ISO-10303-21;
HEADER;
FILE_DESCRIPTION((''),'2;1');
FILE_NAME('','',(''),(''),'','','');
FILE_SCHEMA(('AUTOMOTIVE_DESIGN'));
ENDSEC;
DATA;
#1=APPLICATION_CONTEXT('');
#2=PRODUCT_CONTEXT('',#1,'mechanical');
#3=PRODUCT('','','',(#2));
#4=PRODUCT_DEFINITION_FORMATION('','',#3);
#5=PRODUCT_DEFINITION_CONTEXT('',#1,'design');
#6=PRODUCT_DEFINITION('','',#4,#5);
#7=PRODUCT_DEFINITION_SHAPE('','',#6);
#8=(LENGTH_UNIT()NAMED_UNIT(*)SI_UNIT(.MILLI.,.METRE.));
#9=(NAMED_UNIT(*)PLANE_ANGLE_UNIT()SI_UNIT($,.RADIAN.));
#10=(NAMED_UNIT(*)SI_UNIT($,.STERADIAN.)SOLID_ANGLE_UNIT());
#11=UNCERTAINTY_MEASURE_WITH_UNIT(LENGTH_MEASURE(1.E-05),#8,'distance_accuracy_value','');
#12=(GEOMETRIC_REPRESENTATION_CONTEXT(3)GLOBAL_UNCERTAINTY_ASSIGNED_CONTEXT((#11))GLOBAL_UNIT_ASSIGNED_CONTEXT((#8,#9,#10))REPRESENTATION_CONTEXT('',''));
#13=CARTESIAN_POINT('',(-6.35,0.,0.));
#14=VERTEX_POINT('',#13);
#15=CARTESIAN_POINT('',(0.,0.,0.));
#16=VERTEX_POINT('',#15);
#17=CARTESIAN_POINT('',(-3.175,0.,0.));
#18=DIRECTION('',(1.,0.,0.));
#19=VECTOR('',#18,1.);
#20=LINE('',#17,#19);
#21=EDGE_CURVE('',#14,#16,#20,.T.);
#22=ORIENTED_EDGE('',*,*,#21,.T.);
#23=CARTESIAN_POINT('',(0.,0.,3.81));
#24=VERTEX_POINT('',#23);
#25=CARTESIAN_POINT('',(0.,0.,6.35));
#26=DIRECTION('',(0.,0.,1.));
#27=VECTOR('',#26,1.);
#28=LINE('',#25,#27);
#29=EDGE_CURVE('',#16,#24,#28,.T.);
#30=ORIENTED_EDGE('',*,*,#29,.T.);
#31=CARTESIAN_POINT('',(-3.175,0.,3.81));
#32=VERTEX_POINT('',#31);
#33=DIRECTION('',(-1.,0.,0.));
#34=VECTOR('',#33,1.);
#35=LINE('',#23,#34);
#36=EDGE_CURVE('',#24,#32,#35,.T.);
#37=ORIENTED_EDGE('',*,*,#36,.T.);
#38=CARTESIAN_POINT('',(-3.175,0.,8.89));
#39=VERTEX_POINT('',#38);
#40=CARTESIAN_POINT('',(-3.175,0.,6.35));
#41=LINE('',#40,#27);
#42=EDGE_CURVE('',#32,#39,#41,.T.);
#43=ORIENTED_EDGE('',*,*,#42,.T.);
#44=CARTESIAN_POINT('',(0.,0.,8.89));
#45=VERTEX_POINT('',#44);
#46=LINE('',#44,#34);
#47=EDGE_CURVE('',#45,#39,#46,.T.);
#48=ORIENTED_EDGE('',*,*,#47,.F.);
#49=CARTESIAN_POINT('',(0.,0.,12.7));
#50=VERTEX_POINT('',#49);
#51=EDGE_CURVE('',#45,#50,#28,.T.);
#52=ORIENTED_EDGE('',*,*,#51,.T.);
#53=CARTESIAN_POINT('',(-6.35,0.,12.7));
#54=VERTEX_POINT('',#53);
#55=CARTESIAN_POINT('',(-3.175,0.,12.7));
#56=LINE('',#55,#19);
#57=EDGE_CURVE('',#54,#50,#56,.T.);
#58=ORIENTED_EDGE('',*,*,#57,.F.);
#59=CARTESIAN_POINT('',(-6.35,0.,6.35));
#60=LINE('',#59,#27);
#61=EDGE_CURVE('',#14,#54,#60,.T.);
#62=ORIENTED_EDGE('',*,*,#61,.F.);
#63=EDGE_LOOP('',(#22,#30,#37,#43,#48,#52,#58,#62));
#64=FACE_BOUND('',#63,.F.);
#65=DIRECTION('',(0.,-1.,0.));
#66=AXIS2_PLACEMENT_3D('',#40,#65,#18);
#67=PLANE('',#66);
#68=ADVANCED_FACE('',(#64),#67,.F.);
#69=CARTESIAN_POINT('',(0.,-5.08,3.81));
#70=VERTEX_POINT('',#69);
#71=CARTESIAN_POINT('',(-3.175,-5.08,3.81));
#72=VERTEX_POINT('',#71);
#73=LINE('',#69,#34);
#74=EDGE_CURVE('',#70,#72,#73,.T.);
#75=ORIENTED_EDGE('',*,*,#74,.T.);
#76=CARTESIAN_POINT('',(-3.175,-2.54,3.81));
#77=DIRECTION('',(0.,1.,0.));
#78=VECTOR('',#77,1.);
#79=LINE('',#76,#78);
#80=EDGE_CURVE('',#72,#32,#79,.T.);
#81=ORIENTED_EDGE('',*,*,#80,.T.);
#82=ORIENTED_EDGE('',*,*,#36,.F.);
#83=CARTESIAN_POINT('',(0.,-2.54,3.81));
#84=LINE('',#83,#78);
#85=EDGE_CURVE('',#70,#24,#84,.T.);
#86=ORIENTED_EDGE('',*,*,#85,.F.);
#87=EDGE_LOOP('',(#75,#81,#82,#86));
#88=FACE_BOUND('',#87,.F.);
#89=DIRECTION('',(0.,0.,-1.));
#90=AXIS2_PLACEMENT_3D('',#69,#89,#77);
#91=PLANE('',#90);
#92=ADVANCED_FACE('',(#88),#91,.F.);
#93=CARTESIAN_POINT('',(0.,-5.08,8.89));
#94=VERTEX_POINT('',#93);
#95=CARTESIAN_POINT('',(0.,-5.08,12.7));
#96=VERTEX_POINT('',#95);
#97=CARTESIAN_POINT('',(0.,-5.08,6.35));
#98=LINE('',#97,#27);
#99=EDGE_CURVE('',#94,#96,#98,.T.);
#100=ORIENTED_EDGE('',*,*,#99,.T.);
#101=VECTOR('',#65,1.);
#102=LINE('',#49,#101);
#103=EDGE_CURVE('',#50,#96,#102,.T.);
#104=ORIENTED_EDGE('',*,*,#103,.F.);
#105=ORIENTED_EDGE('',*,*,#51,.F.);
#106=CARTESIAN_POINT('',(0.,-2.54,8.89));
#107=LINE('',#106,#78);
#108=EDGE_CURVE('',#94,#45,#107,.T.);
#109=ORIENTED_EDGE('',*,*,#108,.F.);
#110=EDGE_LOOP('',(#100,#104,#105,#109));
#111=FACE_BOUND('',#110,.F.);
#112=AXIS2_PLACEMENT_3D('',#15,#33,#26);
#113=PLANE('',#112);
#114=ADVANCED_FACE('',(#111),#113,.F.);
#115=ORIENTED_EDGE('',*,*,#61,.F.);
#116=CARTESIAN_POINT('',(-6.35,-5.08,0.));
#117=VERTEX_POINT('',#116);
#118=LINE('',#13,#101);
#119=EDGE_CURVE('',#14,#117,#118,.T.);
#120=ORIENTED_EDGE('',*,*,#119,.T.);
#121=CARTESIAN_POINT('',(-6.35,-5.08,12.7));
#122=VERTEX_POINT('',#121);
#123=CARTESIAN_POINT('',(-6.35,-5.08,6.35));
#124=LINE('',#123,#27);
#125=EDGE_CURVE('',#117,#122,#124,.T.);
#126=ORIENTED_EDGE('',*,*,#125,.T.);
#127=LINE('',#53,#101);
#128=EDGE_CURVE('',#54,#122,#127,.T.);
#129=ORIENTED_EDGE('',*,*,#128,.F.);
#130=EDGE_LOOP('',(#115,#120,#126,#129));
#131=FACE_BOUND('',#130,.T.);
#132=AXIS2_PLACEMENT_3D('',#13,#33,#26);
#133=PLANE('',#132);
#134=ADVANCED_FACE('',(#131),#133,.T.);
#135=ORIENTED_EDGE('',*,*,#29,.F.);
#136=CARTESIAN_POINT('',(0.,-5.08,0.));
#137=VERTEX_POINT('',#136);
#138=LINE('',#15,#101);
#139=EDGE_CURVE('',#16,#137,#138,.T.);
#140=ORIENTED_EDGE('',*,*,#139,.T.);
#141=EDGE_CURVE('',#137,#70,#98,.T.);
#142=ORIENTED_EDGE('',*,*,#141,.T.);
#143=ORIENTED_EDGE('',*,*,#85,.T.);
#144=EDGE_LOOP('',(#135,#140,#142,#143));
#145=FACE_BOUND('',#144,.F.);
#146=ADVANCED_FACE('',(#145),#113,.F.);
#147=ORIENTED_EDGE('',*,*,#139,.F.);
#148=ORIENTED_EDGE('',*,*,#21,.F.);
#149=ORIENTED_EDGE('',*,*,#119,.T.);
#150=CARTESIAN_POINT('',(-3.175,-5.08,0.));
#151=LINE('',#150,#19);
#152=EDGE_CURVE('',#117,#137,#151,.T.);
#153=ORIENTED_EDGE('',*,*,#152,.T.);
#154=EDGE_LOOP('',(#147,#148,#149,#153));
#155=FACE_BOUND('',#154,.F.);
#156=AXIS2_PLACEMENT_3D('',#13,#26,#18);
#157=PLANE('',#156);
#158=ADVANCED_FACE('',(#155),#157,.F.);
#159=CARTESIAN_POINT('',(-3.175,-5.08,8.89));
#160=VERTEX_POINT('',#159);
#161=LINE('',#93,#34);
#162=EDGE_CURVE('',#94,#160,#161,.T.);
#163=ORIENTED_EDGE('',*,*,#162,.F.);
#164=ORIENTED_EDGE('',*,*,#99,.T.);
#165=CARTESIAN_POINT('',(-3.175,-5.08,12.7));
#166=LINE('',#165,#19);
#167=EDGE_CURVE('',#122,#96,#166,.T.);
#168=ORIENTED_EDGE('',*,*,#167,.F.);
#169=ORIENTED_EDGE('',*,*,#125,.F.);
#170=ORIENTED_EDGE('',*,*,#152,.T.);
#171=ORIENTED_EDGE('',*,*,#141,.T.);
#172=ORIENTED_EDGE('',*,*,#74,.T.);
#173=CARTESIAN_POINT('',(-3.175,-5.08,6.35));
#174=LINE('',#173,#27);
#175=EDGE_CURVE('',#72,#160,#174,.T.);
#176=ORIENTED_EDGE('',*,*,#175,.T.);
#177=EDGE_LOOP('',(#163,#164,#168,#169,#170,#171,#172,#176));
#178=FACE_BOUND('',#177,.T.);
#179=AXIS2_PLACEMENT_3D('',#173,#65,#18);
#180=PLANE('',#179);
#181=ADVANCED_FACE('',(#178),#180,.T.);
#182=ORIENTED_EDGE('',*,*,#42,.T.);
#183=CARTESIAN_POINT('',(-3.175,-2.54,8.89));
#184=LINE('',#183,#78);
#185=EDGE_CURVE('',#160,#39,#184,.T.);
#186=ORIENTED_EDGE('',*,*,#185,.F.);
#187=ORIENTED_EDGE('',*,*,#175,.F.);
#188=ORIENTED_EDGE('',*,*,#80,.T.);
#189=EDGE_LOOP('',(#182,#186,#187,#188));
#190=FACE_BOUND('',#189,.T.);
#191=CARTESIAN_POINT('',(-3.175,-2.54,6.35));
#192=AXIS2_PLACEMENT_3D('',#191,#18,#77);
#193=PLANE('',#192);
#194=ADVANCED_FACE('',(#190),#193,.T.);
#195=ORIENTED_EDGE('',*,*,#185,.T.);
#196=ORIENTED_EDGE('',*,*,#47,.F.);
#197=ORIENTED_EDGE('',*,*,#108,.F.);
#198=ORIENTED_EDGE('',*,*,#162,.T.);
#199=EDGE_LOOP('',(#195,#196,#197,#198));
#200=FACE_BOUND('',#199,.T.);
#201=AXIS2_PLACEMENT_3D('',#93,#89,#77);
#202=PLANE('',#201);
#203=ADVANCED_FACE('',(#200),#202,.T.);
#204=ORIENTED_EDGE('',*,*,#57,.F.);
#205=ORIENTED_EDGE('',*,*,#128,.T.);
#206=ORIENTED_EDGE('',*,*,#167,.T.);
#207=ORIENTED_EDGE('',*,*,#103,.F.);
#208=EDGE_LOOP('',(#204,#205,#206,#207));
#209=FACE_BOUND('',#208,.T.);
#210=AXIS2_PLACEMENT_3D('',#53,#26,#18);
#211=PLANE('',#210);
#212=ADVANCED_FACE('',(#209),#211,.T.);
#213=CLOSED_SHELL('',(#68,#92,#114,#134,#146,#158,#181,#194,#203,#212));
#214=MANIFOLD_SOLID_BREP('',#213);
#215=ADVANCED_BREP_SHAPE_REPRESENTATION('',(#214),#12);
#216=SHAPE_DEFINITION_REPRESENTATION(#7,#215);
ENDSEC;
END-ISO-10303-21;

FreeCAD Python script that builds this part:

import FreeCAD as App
import Part
import Sketcher

V = App.Vector
Q = App.Units.Quantity

doc = App.newDocument("Part")
body = doc.addObject("PartDesign::Body", "Body")

# Sketch on XZ plane
sketch1 = doc.addObject("Sketcher::SketchObject", "Sketch")
body.addObject(sketch1)
sketch1.AttachmentSupport = (doc.XZ_Plane, [""])
sketch1.MapMode = "FlatFace"
sketch1.addGeometry([
    Part.LineSegment(V(-6.35, 12.7, 0), V(-6.35, 0, 0)),
    Part.LineSegment(V(-6.35, 0, 0), V(0, 0, 0)),
    Part.LineSegment(V(0, 0, 0), V(0, 12.7, 0)),
    Part.LineSegment(V(0, 12.7, 0), V(-6.35, 12.7, 0)),
], False)
sketch1.addConstraint([
    Sketcher.Constraint("Coincident", 0, 2, 1, 1),
    Sketcher.Constraint("Coincident", 1, 2, 2, 1),
    Sketcher.Constraint("Coincident", 2, 2, 3, 1),
    Sketcher.Constraint("Coincident", 3, 2, 0, 1),
    Sketcher.Constraint("Vertical", 0),
    Sketcher.Constraint("Horizontal", 1),
    Sketcher.Constraint("Vertical", 2),
    Sketcher.Constraint("Horizontal", 3),
    Sketcher.Constraint("Coincident", 1, 2, -1, 1),
    Sketcher.Constraint("DistanceY", 0, 2, 0, 1, Q("0.5 in")),
    Sketcher.Constraint("DistanceX", 1, 1, 1, 2, Q("0.25 in")),
])
pad1 = doc.addObject("PartDesign::Pad", "Pad")
body.addObject(pad1)
pad1.Profile = sketch1
pad1.Length = Q("0.2 in")

# Sketch on YZ plane
sketch2 = doc.addObject("Sketcher::SketchObject", "Sketch001")
body.addObject(sketch2)
sketch2.AttachmentSupport = (doc.YZ_Plane, [""])
sketch2.MapMode = "FlatFace"
sketch2.addGeometry([
    Part.LineSegment(V(-5.08, 8.89, 0), V(-5.08, 3.81, 0)),
    Part.LineSegment(V(-5.08, 3.81, 0), V(0, 3.81, 0)),
    Part.LineSegment(V(0, 3.81, 0), V(0, 8.89, 0)),
    Part.LineSegment(V(0, 8.89, 0), V(-5.08, 8.89, 0)),
], False)
sketch2.addConstraint([
    Sketcher.Constraint("Coincident", 0, 2, 1, 1),
    Sketcher.Constraint("Coincident", 1, 2, 2, 1),
    Sketcher.Constraint("Coincident", 2, 2, 3, 1),
    Sketcher.Constraint("Coincident", 3, 2, 0, 1),
    Sketcher.Constraint("Vertical", 0),
    Sketcher.Constraint("Horizontal", 1),
    Sketcher.Constraint("Vertical", 2),
    Sketcher.Constraint("Horizontal", 3),
    Sketcher.Constraint("PointOnObject", 1, 2, -2),
    Sketcher.Constraint("Equal", 3, 0),
    Sketcher.Constraint("DistanceX", 1, 1, 1, 2, Q("0.2 in")),
    Sketcher.Constraint("DistanceY", -1, 1, 0, 2, Q("0.15 in")),
])
pocket1 = doc.addObject("PartDesign::Pocket", "Pocket")
body.addObject(pocket1)
pocket1.Profile = sketch2
pocket1.Length = Q("0.125 in")

doc.recompute()
